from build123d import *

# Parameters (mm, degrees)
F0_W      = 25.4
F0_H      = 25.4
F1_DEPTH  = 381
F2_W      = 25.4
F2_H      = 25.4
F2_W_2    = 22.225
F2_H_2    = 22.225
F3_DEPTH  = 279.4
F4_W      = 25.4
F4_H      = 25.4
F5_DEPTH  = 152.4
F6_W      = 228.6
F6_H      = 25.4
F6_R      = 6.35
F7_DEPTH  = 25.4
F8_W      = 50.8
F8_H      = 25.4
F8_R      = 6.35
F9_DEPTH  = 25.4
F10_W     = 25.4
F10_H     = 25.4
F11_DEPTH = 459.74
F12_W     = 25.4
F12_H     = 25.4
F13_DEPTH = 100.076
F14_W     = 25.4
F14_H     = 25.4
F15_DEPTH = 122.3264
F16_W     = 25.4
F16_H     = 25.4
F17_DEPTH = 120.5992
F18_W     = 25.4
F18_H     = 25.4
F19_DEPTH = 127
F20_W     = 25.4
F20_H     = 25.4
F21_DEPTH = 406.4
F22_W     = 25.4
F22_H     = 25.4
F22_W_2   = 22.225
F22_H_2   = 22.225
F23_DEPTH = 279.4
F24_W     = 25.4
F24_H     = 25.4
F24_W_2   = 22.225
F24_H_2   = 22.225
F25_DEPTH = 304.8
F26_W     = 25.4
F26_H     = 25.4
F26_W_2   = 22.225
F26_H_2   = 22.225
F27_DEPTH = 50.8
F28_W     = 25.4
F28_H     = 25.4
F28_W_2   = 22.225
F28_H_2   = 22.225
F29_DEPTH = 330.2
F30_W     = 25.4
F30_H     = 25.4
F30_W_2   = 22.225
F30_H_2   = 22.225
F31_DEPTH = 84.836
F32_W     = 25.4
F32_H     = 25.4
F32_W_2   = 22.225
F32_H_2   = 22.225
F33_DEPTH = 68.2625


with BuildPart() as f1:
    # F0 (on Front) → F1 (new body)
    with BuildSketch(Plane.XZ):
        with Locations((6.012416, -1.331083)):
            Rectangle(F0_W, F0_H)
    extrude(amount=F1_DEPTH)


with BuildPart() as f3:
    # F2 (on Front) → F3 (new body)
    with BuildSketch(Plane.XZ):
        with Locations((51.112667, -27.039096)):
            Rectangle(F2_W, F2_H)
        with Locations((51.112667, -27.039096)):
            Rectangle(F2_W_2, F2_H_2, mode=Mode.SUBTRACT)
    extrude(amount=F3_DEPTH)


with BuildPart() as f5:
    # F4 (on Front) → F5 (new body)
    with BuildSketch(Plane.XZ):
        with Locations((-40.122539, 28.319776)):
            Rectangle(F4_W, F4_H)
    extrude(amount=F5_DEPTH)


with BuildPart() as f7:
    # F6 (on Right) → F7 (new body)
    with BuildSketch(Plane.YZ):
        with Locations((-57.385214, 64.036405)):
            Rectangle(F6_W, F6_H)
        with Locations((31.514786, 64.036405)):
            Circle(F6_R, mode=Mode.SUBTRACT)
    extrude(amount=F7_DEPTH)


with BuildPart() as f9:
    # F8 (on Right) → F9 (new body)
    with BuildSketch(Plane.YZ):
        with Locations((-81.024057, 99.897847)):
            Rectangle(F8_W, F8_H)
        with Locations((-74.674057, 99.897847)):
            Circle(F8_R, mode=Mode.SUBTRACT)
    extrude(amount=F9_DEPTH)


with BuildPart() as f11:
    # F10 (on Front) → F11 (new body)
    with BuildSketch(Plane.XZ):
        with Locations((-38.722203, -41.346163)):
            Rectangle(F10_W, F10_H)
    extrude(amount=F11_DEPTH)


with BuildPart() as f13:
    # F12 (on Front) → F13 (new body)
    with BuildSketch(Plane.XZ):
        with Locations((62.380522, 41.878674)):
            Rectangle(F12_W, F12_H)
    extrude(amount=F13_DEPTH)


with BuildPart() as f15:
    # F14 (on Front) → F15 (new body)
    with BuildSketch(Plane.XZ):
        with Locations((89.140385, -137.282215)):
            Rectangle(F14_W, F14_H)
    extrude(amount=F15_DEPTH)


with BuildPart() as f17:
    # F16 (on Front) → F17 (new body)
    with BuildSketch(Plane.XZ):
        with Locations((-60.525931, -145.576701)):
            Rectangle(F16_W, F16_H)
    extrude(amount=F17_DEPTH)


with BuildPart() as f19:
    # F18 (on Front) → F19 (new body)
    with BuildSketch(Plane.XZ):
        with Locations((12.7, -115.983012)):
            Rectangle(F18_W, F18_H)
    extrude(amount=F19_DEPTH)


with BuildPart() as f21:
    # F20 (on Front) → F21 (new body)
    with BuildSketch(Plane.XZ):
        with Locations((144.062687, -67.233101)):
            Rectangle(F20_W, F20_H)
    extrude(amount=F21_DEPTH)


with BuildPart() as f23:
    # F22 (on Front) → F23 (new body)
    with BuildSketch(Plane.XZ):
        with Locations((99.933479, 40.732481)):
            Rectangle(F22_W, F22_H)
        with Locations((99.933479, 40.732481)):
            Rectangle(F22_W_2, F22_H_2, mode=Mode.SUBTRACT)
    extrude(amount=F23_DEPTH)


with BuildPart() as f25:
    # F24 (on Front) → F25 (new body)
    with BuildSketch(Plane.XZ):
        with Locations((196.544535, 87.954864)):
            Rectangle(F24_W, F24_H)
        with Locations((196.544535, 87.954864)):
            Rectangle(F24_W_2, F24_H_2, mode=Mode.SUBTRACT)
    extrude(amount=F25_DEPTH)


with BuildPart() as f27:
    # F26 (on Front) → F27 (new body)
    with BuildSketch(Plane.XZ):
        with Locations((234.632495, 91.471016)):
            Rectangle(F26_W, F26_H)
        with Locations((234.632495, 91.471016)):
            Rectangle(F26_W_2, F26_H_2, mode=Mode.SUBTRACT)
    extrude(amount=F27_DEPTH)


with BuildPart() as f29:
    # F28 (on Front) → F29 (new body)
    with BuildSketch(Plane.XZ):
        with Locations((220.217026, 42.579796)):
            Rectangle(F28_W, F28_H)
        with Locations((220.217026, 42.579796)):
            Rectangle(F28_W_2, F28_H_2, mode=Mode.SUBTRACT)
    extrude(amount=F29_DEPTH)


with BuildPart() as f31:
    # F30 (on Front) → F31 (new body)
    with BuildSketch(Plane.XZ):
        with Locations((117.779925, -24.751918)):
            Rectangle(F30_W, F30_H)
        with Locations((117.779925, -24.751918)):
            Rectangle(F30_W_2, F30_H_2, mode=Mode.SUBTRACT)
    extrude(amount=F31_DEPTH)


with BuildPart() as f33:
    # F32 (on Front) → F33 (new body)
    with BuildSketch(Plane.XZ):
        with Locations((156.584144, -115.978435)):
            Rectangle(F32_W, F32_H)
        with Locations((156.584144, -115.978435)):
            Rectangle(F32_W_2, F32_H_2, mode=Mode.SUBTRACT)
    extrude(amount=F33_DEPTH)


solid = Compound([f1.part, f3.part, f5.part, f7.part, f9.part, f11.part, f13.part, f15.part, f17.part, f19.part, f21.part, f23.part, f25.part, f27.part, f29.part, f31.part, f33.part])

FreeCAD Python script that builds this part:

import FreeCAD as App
import Part
import Sketcher

V = App.Vector
Q = App.Units.Quantity

doc = App.newDocument("Part")
params = doc.addObject("Spreadsheet::Sheet", "Params")
for row, (alias, value) in enumerate([
    ("sketch1_width", "1 in"),
    ("pad1_length", "15 in"),
    ("sketch2_width", "1 in"),
    ("sketch2_width2", "0.875 in"),
    ("pad2_length", "11 in"),
    ("sketch3_width", "1 in"),
    ("pad3_length", "6 in"),
    ("sketch4_diameter", "0.5 in"),
    ("sketch4_width", "9 in"),
    ("sketch4_height", "1 in"),
    ("pad4_length", "1 in"),
    ("sketch5_diameter", "0.5 in"),
    ("sketch5_width", "2 in"),
    ("sketch5_height", "1 in"),
    ("pad5_length", "1 in"),
    ("sketch6_width", "1 in"),
    ("pad6_length", "18.1 in"),
    ("sketch7_width", "1 in"),
    ("pad7_length", "3.94 in"),
    ("sketch8_width", "1 in"),
    ("pad8_length", "4.816 in"),
    ("sketch9_width", "1 in"),
    ("pad9_length", "4.748 in"),
    ("sketch10_width", "1 in"),
    ("pad10_length", "5 in"),
    ("sketch11_width", "1 in"),
    ("pad11_length", "16 in"),
    ("sketch12_width", "1 in"),
    ("sketch12_width2", "0.875 in"),
    ("pad12_length", "11 in"),
    ("sketch13_width", "1 in"),
    ("sketch13_width2", "0.875 in"),
    ("pad13_length", "12 in"),
    ("sketch14_width", "1 in"),
    ("sketch14_width2", "0.875 in"),
    ("pad14_length", "2 in"),
    ("sketch15_width", "1 in"),
    ("sketch15_width2", "0.875 in"),
    ("pad15_length", "13 in"),
    ("sketch16_width", "1 in"),
    ("sketch16_width2", "0.875 in"),
    ("pad16_length", "3.34 in"),
    ("sketch17_width", "1 in"),
    ("sketch17_width2", "0.875 in"),
    ("pad17_length", "2.6875 in"),
], start=1):
    params.set(f"A{row}", alias)
    params.set(f"B{row}", "=" + value)
    params.setAlias(f"B{row}", alias)

body = doc.addObject("PartDesign::Body", "Body")

# Sketch on XZ plane
sketch1 = body.newObject("Sketcher::SketchObject", "Sketch")
sketch1.AttachmentSupport = (doc.getObject("XZ_Plane"), [""])
sketch1.MapMode = "FlatFace"
sketch1.addGeometry([
    Part.LineSegment(V(-7, 11, 0), V(-7, -14, 0)),
    Part.LineSegment(V(-7, -14, 0), V(19, -14, 0)),
    Part.LineSegment(V(19, -14, 0), V(19, 11, 0)),
    Part.LineSegment(V(19, 11, 0), V(-7, 11, 0)),
], False)
sketch1.addConstraint([
    Sketcher.Constraint("Coincident", 0, 2, 1, 1),
    Sketcher.Constraint("Coincident", 1, 2, 2, 1),
    Sketcher.Constraint("Coincident", 2, 2, 3, 1),
    Sketcher.Constraint("Coincident", 3, 2, 0, 1),
    Sketcher.Constraint("Vertical", 0),
    Sketcher.Constraint("Horizontal", 1),
    Sketcher.Constraint("Vertical", 2),
    Sketcher.Constraint("Horizontal", 3),
    Sketcher.Constraint("Equal", 3, 0),
    Sketcher.Constraint("DistanceX", 1, 1, 1, 2, Q("1 in")),
    Sketcher.Constraint("DistanceX", 0, 2, -1, 1, Q("6.687584 mm")),
    Sketcher.Constraint("DistanceY", 0, 2, -1, 1, Q("14.031083 mm")),
])
sketch1.setExpression("Constraints[9]", "Params.sketch1_width")
pad1 = body.newObject("PartDesign::Pad", "Pad")
pad1.Profile = sketch1
pad1.setExpression("Length", "Params.pad1_length")
body2 = doc.addObject("PartDesign::Body", "Body001")

# Sketch on XZ plane
sketch2 = body2.newObject("Sketcher::SketchObject", "Sketch001")
sketch2.AttachmentSupport = (doc.getObject("XZ_Plane001"), [""])
sketch2.MapMode = "FlatFace"
sketch2.addGeometry([
    Part.LineSegment(V(38, -14, 0), V(38, -40, 0)),  # 0
    Part.LineSegment(V(38, -40, 0), V(64, -40, 0)),  # 1
    Part.LineSegment(V(64, -40, 0), V(64, -14, 0)),  # 2
    Part.LineSegment(V(64, -14, 0), V(38, -14, 0)),  # 3
    Part.LineSegment(V(62, -38, 0), V(40, -38, 0)),  # 4
    Part.LineSegment(V(40, -38, 0), V(40, -16, 0)),  # 5
    Part.LineSegment(V(40, -16, 0), V(62, -16, 0)),  # 6
    Part.LineSegment(V(62, -16, 0), V(62, -38, 0)),  # 7
], False)
sketch2.addConstraint([
    Sketcher.Constraint("Coincident", 0, 2, 1, 1),
    Sketcher.Constraint("Coincident", 1, 2, 2, 1),
    Sketcher.Constraint("Coincident", 2, 2, 3, 1),
    Sketcher.Constraint("Coincident", 3, 2, 0, 1),
    Sketcher.Constraint("Coincident", 4, 2, 5, 1),
    Sketcher.Constraint("Coincident", 5, 2, 6, 1),
    Sketcher.Constraint("Coincident", 6, 2, 7, 1),
    Sketcher.Constraint("Coincident", 7, 2, 4, 1),
    Sketcher.Constraint("Vertical", 0),
    Sketcher.Constraint("Horizontal", 1),
    Sketcher.Constraint("Vertical", 2),
    Sketcher.Constraint("Horizontal", 3),
    Sketcher.Constraint("Horizontal", 4),
    Sketcher.Constraint("Vertical", 5),
    Sketcher.Constraint("Horizontal", 6),
    Sketcher.Constraint("Vertical", 7),
    Sketcher.Constraint("Equal", 3, 0),
    Sketcher.Constraint("Equal", 6, 5),
    Sketcher.Constraint("DistanceX", 1, 1, 1, 2, Q("1 in")),
    Sketcher.Constraint("DistanceX", 4, 2, 4, 1, Q("0.875 in")),
    Sketcher.Constraint("DistanceX", 0, 2, 4, 2, Q("0.0625 in")),
    Sketcher.Constraint("DistanceY", 0, 2, 4, 2, Q("0.0625 in")),
    Sketcher.Constraint("DistanceX", -1, 1, 0, 2, Q("38.412667 mm")),
    Sketcher.Constraint("DistanceY", 0, 2, -1, 1, Q("39.739096 mm")),
])
sketch2.setExpression("Constraints[18]", "Params.sketch2_width")
sketch2.setExpression("Constraints[19]", "Params.sketch2_width2")
pad2 = body2.newObject("PartDesign::Pad", "Pad001")
pad2.Profile = sketch2
pad2.setExpression("Length", "Params.pad2_length")
body3 = doc.addObject("PartDesign::Body", "Body002")

# Sketch on XZ plane
sketch3 = body3.newObject("Sketcher::SketchObject", "Sketch002")
sketch3.AttachmentSupport = (doc.getObject("XZ_Plane002"), [""])
sketch3.MapMode = "FlatFace"
sketch3.addGeometry([
    Part.LineSegment(V(-53, 41, 0), V(-53, 16, 0)),
    Part.LineSegment(V(-53, 16, 0), V(-27, 16, 0)),
    Part.LineSegment(V(-27, 16, 0), V(-27, 41, 0)),
    Part.LineSegment(V(-27, 41, 0), V(-53, 41, 0)),
], False)
sketch3.addConstraint([
    Sketcher.Constraint("Coincident", 0, 2, 1, 1),
    Sketcher.Constraint("Coincident", 1, 2, 2, 1),
    Sketcher.Constraint("Coincident", 2, 2, 3, 1),
    Sketcher.Constraint("Coincident", 3, 2, 0, 1),
    Sketcher.Constraint("Vertical", 0),
    Sketcher.Constraint("Horizontal", 1),
    Sketcher.Constraint("Vertical", 2),
    Sketcher.Constraint("Horizontal", 3),
    Sketcher.Constraint("Equal", 3, 0),
    Sketcher.Constraint("DistanceX", 1, 1, 1, 2, Q("1 in")),
    Sketcher.Constraint("DistanceX", 0, 2, -1, 1, Q("52.822539 mm")),
    Sketcher.Constraint("DistanceY", -1, 1, 0, 2, Q("15.619776 mm")),
])
sketch3.setExpression("Constraints[9]", "Params.sketch3_width")
pad3 = body3.newObject("PartDesign::Pad", "Pad002")
pad3.Profile = sketch3
pad3.setExpression("Length", "Params.pad3_length")
body4 = doc.addObject("PartDesign::Body", "Body003")

# Sketch on YZ plane
sketch4 = body4.newObject("Sketcher::SketchObject", "Sketch003")
sketch4.AttachmentSupport = (doc.getObject("YZ_Plane003"), [""])
sketch4.MapMode = "FlatFace"
sketch4.addGeometry([
    Part.LineSegment(V(-172, 77, 0), V(-172, 51, 0)),  # 0
    Part.LineSegment(V(-172, 51, 0), V(57, 51, 0)),  # 1
    Part.LineSegment(V(57, 51, 0), V(57, 77, 0)),  # 2
    Part.LineSegment(V(57, 77, 0), V(-172, 77, 0)),  # 3
    Part.Circle(V(32, 64, 0), V(0, 0, 1), 6),  # 4
], False)
sketch4.addConstraint([
    Sketcher.Constraint("Coincident", 0, 2, 1, 1),
    Sketcher.Constraint("Coincident", 1, 2, 2, 1),
    Sketcher.Constraint("Coincident", 2, 2, 3, 1),
    Sketcher.Constraint("Coincident", 3, 2, 0, 1),
    Sketcher.Constraint("Vertical", 0),
    Sketcher.Constraint("Horizontal", 1),
    Sketcher.Constraint("Vertical", 2),
    Sketcher.Constraint("Horizontal", 3),
    Sketcher.Constraint("Diameter", 4, Q("0.5 in")),
    Sketcher.Constraint("DistanceX", 1, 1, 1, 2, Q("9 in")),
    Sketcher.Constraint("DistanceY", 0, 2, 0, 1, Q("1 in")),
    Sketcher.Constraint("DistanceX", 0, 2, 4, 3, Q("8 in")),
    Sketcher.Constraint("DistanceY", 0, 2, 4, 3, Q("0.5 in")),
    Sketcher.Constraint("DistanceX", -1, 1, 4, 3, Q("31.514786 mm")),
    Sketcher.Constraint("DistanceY", -1, 1, 4, 3, Q("64.036405 mm")),
])
sketch4.setExpression("Constraints[8]", "Params.sketch4_diameter")
sketch4.setExpression("Constraints[9]", "Params.sketch4_width")
sketch4.setExpression("Constraints[10]", "Params.sketch4_height")
pad4 = body4.newObject("PartDesign::Pad", "Pad003")
pad4.Profile = sketch4
pad4.setExpression("Length", "Params.pad4_length")
body5 = doc.addObject("PartDesign::Body", "Body004")

# Sketch on YZ plane
sketch5 = body5.newObject("Sketcher::SketchObject", "Sketch004")
sketch5.AttachmentSupport = (doc.getObject("YZ_Plane004"), [""])
sketch5.MapMode = "FlatFace"
sketch5.addGeometry([
    Part.LineSegment(V(-106, 113, 0), V(-106, 87, 0)),  # 0
    Part.LineSegment(V(-106, 87, 0), V(-56, 87, 0)),  # 1
    Part.LineSegment(V(-56, 87, 0), V(-56, 113, 0)),  # 2
    Part.LineSegment(V(-56, 113, 0), V(-106, 113, 0)),  # 3
    Part.Circle(V(-75, 100, 0), V(0, 0, 1), 6),  # 4
], False)
sketch5.addConstraint([
    Sketcher.Constraint("Coincident", 0, 2, 1, 1),
    Sketcher.Constraint("Coincident", 1, 2, 2, 1),
    Sketcher.Constraint("Coincident", 2, 2, 3, 1),
    Sketcher.Constraint("Coincident", 3, 2, 0, 1),
    Sketcher.Constraint("Vertical", 0),
    Sketcher.Constraint("Horizontal", 1),
    Sketcher.Constraint("Vertical", 2),
    Sketcher.Constraint("Horizontal", 3),
    Sketcher.Constraint("Diameter", 4, Q("0.5 in")),
    Sketcher.Constraint("DistanceX", 1, 1, 1, 2, Q("2 in")),
    Sketcher.Constraint("DistanceY", 0, 2, 0, 1, Q("1 in")),
    Sketcher.Constraint("DistanceY", 0, 2, 4, 3, Q("0.5 in")),
    Sketcher.Constraint("DistanceX", 0, 2, 4, 3, Q("1.25 in")),
    Sketcher.Constraint("DistanceX", 4, 3, -1, 1, Q("74.674057 mm")),
    Sketcher.Constraint("DistanceY", -1, 1, 4, 3, Q("99.897847 mm")),
])
sketch5.setExpression("Constraints[8]", "Params.sketch5_diameter")
sketch5.setExpression("Constraints[9]", "Params.sketch5_width")
sketch5.setExpression("Constraints[10]", "Params.sketch5_height")
pad5 = body5.newObject("PartDesign::Pad", "Pad004")
pad5.Profile = sketch5
pad5.setExpression("Length", "Params.pad5_length")
body6 = doc.addObject("PartDesign::Body", "Body005")

# Sketch on XZ plane
sketch6 = body6.newObject("Sketcher::SketchObject", "Sketch005")
sketch6.AttachmentSupport = (doc.getObject("XZ_Plane005"), [""])
sketch6.MapMode = "FlatFace"
sketch6.addGeometry([
    Part.LineSegment(V(-51, -29, 0), V(-51, -54, 0)),
    Part.LineSegment(V(-51, -54, 0), V(-26, -54, 0)),
    Part.LineSegment(V(-26, -54, 0), V(-26, -29, 0)),
    Part.LineSegment(V(-26, -29, 0), V(-51, -29, 0)),
], False)
sketch6.addConstraint([
    Sketcher.Constraint("Coincident", 0, 2, 1, 1),
    Sketcher.Constraint("Coincident", 1, 2, 2, 1),
    Sketcher.Constraint("Coincident", 2, 2, 3, 1),
    Sketcher.Constraint("Coincident", 3, 2, 0, 1),
    Sketcher.Constraint("Vertical", 0),
    Sketcher.Constraint("Horizontal", 1),
    Sketcher.Constraint("Vertical", 2),
    Sketcher.Constraint("Horizontal", 3),
    Sketcher.Constraint("Equal", 3, 0),
    Sketcher.Constraint("DistanceX", 1, 1, 1, 2, Q("1 in")),
    Sketcher.Constraint("DistanceX", 0, 2, -1, 1, Q("51.422203 mm")),
    Sketcher.Constraint("DistanceY", 0, 2, -1, 1, Q("54.046163 mm")),
])
sketch6.setExpression("Constraints[9]", "Params.sketch6_width")
pad6 = body6.newObject("PartDesign::Pad", "Pad005")
pad6.Profile = sketch6
pad6.setExpression("Length", "Params.pad6_length")
body7 = doc.addObject("PartDesign::Body", "Body006")

# Sketch on XZ plane
sketch7 = body7.newObject("Sketcher::SketchObject", "Sketch006")
sketch7.AttachmentSupport = (doc.getObject("XZ_Plane006"), [""])
sketch7.MapMode = "FlatFace"
sketch7.addGeometry([
    Part.LineSegment(V(50, 55, 0), V(50, 29, 0)),
    Part.LineSegment(V(50, 29, 0), V(75, 29, 0)),
    Part.LineSegment(V(75, 29, 0), V(75, 55, 0)),
    Part.LineSegment(V(75, 55, 0), V(50, 55, 0)),
], False)
sketch7.addConstraint([
    Sketcher.Constraint("Coincident", 0, 2, 1, 1),
    Sketcher.Constraint("Coincident", 1, 2, 2, 1),
    Sketcher.Constraint("Coincident", 2, 2, 3, 1),
    Sketcher.Constraint("Coincident", 3, 2, 0, 1),
    Sketcher.Constraint("Vertical", 0),
    Sketcher.Constraint("Horizontal", 1),
    Sketcher.Constraint("Vertical", 2),
    Sketcher.Constraint("Horizontal", 3),
    Sketcher.Constraint("Equal", 3, 0),
    Sketcher.Constraint("DistanceX", 1, 1, 1, 2, Q("1 in")),
    Sketcher.Constraint("DistanceX", -1, 1, 1, 2, Q("75.080522 mm")),
    Sketcher.Constraint("DistanceY", -1, 1, 0, 2, Q("29.178674 mm")),
])
sketch7.setExpression("Constraints[9]", "Params.sketch7_width")
pad7 = body7.newObject("PartDesign::Pad", "Pad006")
pad7.Profile = sketch7
pad7.setExpression("Length", "Params.pad7_length")
body8 = doc.addObject("PartDesign::Body", "Body007")

# Sketch on XZ plane
sketch8 = body8.newObject("Sketcher::SketchObject", "Sketch007")
sketch8.AttachmentSupport = (doc.getObject("XZ_Plane007"), [""])
sketch8.MapMode = "FlatFace"
sketch8.addGeometry([
    Part.LineSegment(V(76, -125, 0), V(76, -150, 0)),
    Part.LineSegment(V(76, -150, 0), V(102, -150, 0)),
    Part.LineSegment(V(102, -150, 0), V(102, -125, 0)),
    Part.LineSegment(V(102, -125, 0), V(76, -125, 0)),
], False)
sketch8.addConstraint([
    Sketcher.Constraint("Coincident", 0, 2, 1, 1),
    Sketcher.Constraint("Coincident", 1, 2, 2, 1),
    Sketcher.Constraint("Coincident", 2, 2, 3, 1),
    Sketcher.Constraint("Coincident", 3, 2, 0, 1),
    Sketcher.Constraint("Vertical", 0),
    Sketcher.Constraint("Horizontal", 1),
    Sketcher.Constraint("Vertical", 2),
    Sketcher.Constraint("Horizontal", 3),
    Sketcher.Constraint("Equal", 3, 0),
    Sketcher.Constraint("DistanceX", 1, 1, 1, 2, Q("1 in")),
    Sketcher.Constraint("DistanceX", -1, 1, 0, 2, Q("76.440385 mm")),
    Sketcher.Constraint("DistanceY", 0, 2, -1, 1, Q("149.982215 mm")),
])
sketch8.setExpression("Constraints[9]", "Params.sketch8_width")
pad8 = body8.newObject("PartDesign::Pad", "Pad007")
pad8.Profile = sketch8
pad8.setExpression("Length", "Params.pad8_length")
body9 = doc.addObject("PartDesign::Body", "Body008")

# Sketch on XZ plane
sketch9 = body9.newObject("Sketcher::SketchObject", "Sketch008")
sketch9.AttachmentSupport = (doc.getObject("XZ_Plane008"), [""])
sketch9.MapMode = "FlatFace"
sketch9.addGeometry([
    Part.LineSegment(V(-73, -133, 0), V(-73, -158, 0)),
    Part.LineSegment(V(-73, -158, 0), V(-48, -158, 0)),
    Part.LineSegment(V(-48, -158, 0), V(-48, -133, 0)),
    Part.LineSegment(V(-48, -133, 0), V(-73, -133, 0)),
], False)
sketch9.addConstraint([
    Sketcher.Constraint("Coincident", 0, 2, 1, 1),
    Sketcher.Constraint("Coincident", 1, 2, 2, 1),
    Sketcher.Constraint("Coincident", 2, 2, 3, 1),
    Sketcher.Constraint("Coincident", 3, 2, 0, 1),
    Sketcher.Constraint("Vertical", 0),
    Sketcher.Constraint("Horizontal", 1),
    Sketcher.Constraint("Vertical", 2),
    Sketcher.Constraint("Horizontal", 3),
    Sketcher.Constraint("Equal", 3, 0),
    Sketcher.Constraint("DistanceX", 1, 1, 1, 2, Q("1 in")),
    Sketcher.Constraint("DistanceY", 0, 2, -1, 1, Q("158.276701 mm")),
    Sketcher.Constraint("DistanceX", 0, 2, -1, 1, Q("73.225931 mm")),
])
sketch9.setExpression("Constraints[9]", "Params.sketch9_width")
pad9 = body9.newObject("PartDesign::Pad", "Pad008")
pad9.Profile = sketch9
pad9.setExpression("Length", "Params.pad9_length")
body10 = doc.addObject("PartDesign::Body", "Body009")

# Sketch on XZ plane
sketch10 = body10.newObject("Sketcher::SketchObject", "Sketch009")
sketch10.AttachmentSupport = (doc.getObject("XZ_Plane009"), [""])
sketch10.MapMode = "FlatFace"
sketch10.addGeometry([
    Part.LineSegment(V(0, -103, 0), V(0, -129, 0)),
    Part.LineSegment(V(0, -129, 0), V(25, -129, 0)),
    Part.LineSegment(V(25, -129, 0), V(25, -103, 0)),
    Part.LineSegment(V(25, -103, 0), V(0, -103, 0)),
], False)
sketch10.addConstraint([
    Sketcher.Constraint("Coincident", 0, 2, 1, 1),
    Sketcher.Constraint("Coincident", 1, 2, 2, 1),
    Sketcher.Constraint("Coincident", 2, 2, 3, 1),
    Sketcher.Constraint("Coincident", 3, 2, 0, 1),
    Sketcher.Constraint("Vertical", 0),
    Sketcher.Constraint("Horizontal", 1),
    Sketcher.Constraint("Vertical", 2),
    Sketcher.Constraint("Horizontal", 3),
    Sketcher.Constraint("PointOnObject", 0, 2, -2),
    Sketcher.Constraint("Equal", 3, 0),
    Sketcher.Constraint("DistanceX", 1, 1, 1, 2, Q("1 in")),
    Sketcher.Constraint("DistanceY", 0, 2, -1, 1, Q("128.683012 mm")),
])
sketch10.setExpression("Constraints[10]", "Params.sketch10_width")
pad10 = body10.newObject("PartDesign::Pad", "Pad009")
pad10.Profile = sketch10
pad10.setExpression("Length", "Params.pad10_length")
body11 = doc.addObject("PartDesign::Body", "Body010")

# Sketch on XZ plane
sketch11 = body11.newObject("Sketcher::SketchObject", "Sketch010")
sketch11.AttachmentSupport = (doc.getObject("XZ_Plane010"), [""])
sketch11.MapMode = "FlatFace"
sketch11.addGeometry([
    Part.LineSegment(V(131, -55, 0), V(131, -80, 0)),
    Part.LineSegment(V(131, -80, 0), V(157, -80, 0)),
    Part.LineSegment(V(157, -80, 0), V(157, -55, 0)),
    Part.LineSegment(V(157, -55, 0), V(131, -55, 0)),
], False)
sketch11.addConstraint([
    Sketcher.Constraint("Coincident", 0, 2, 1, 1),
    Sketcher.Constraint("Coincident", 1, 2, 2, 1),
    Sketcher.Constraint("Coincident", 2, 2, 3, 1),
    Sketcher.Constraint("Coincident", 3, 2, 0, 1),
    Sketcher.Constraint("Vertical", 0),
    Sketcher.Constraint("Horizontal", 1),
    Sketcher.Constraint("Vertical", 2),
    Sketcher.Constraint("Horizontal", 3),
    Sketcher.Constraint("Equal", 3, 0),
    Sketcher.Constraint("DistanceX", 1, 1, 1, 2, Q("1 in")),
    Sketcher.Constraint("DistanceY", 0, 2, -1, 1, Q("79.933101 mm")),
    Sketcher.Constraint("DistanceX", -1, 1, 0, 2, Q("131.362687 mm")),
])
sketch11.setExpression("Constraints[9]", "Params.sketch11_width")
pad11 = body11.newObject("PartDesign::Pad", "Pad010")
pad11.Profile = sketch11
pad11.setExpression("Length", "Params.pad11_length")
body12 = doc.addObject("PartDesign::Body", "Body011")

# Sketch on XZ plane
sketch12 = body12.newObject("Sketcher::SketchObject", "Sketch011")
sketch12.AttachmentSupport = (doc.getObject("XZ_Plane011"), [""])
sketch12.MapMode = "FlatFace"
sketch12.addGeometry([
    Part.LineSegment(V(87, 53, 0), V(87, 28, 0)),  # 0
    Part.LineSegment(V(87, 28, 0), V(113, 28, 0)),  # 1
    Part.LineSegment(V(113, 28, 0), V(113, 53, 0)),  # 2
    Part.LineSegment(V(113, 53, 0), V(87, 53, 0)),  # 3
    Part.LineSegment(V(111, 30, 0), V(89, 30, 0)),  # 4
    Part.LineSegment(V(89, 30, 0), V(89, 52, 0)),  # 5
    Part.LineSegment(V(89, 52, 0), V(111, 52, 0)),  # 6
    Part.LineSegment(V(111, 52, 0), V(111, 30, 0)),  # 7
], False)
sketch12.addConstraint([
    Sketcher.Constraint("Coincident", 0, 2, 1, 1),
    Sketcher.Constraint("Coincident", 1, 2, 2, 1),
    Sketcher.Constraint("Coincident", 2, 2, 3, 1),
    Sketcher.Constraint("Coincident", 3, 2, 0, 1),
    Sketcher.Constraint("Coincident", 4, 2, 5, 1),
    Sketcher.Constraint("Coincident", 5, 2, 6, 1),
    Sketcher.Constraint("Coincident", 6, 2, 7, 1),
    Sketcher.Constraint("Coincident", 7, 2, 4, 1),
    Sketcher.Constraint("Vertical", 0),
    Sketcher.Constraint("Horizontal", 1),
    Sketcher.Constraint("Vertical", 2),
    Sketcher.Constraint("Horizontal", 3),
    Sketcher.Constraint("Horizontal", 4),
    Sketcher.Constraint("Vertical", 5),
    Sketcher.Constraint("Horizontal", 6),
    Sketcher.Constraint("Vertical", 7),
    Sketcher.Constraint("Equal", 3, 0),
    Sketcher.Constraint("Equal", 6, 5),
    Sketcher.Constraint("DistanceX", 1, 1, 1, 2, Q("1 in")),
    Sketcher.Constraint("DistanceX", 4, 2, 4, 1, Q("0.875 in")),
    Sketcher.Constraint("DistanceX", 0, 2, 4, 2, Q("0.0625 in")),
    Sketcher.Constraint("DistanceY", 0, 2, 4, 2, Q("0.0625 in")),
    Sketcher.Constraint("DistanceX", -1, 1, 0, 2, Q("87.233479 mm")),
    Sketcher.Constraint("DistanceY", -1, 1, 0, 2, Q("28.032481 mm")),
])
sketch12.setExpression("Constraints[18]", "Params.sketch12_width")
sketch12.setExpression("Constraints[19]", "Params.sketch12_width2")
pad12 = body12.newObject("PartDesign::Pad", "Pad011")
pad12.Profile = sketch12
pad12.setExpression("Length", "Params.pad12_length")
body13 = doc.addObject("PartDesign::Body", "Body012")

# Sketch on XZ plane
sketch13 = body13.newObject("Sketcher::SketchObject", "Sketch012")
sketch13.AttachmentSupport = (doc.getObject("XZ_Plane012"), [""])
sketch13.MapMode = "FlatFace"
sketch13.addGeometry([
    Part.LineSegment(V(184, 101, 0), V(184, 75, 0)),  # 0
    Part.LineSegment(V(184, 75, 0), V(209, 75, 0)),  # 1
    Part.LineSegment(V(209, 75, 0), V(209, 101, 0)),  # 2
    Part.LineSegment(V(209, 101, 0), V(184, 101, 0)),  # 3
    Part.LineSegment(V(208, 77, 0), V(185, 77, 0)),  # 4
    Part.LineSegment(V(185, 77, 0), V(185, 99, 0)),  # 5
    Part.LineSegment(V(185, 99, 0), V(208, 99, 0)),  # 6
    Part.LineSegment(V(208, 99, 0), V(208, 77, 0)),  # 7
], False)
sketch13.addConstraint([
    Sketcher.Constraint("Coincident", 0, 2, 1, 1),
    Sketcher.Constraint("Coincident", 1, 2, 2, 1),
    Sketcher.Constraint("Coincident", 2, 2, 3, 1),
    Sketcher.Constraint("Coincident", 3, 2, 0, 1),
    Sketcher.Constraint("Coincident", 4, 2, 5, 1),
    Sketcher.Constraint("Coincident", 5, 2, 6, 1),
    Sketcher.Constraint("Coincident", 6, 2, 7, 1),
    Sketcher.Constraint("Coincident", 7, 2, 4, 1),
    Sketcher.Constraint("Vertical", 0),
    Sketcher.Constraint("Horizontal", 1),
    Sketcher.Constraint("Vertical", 2),
    Sketcher.Constraint("Horizontal", 3),
    Sketcher.Constraint("Horizontal", 4),
    Sketcher.Constraint("Vertical", 5),
    Sketcher.Constraint("Horizontal", 6),
    Sketcher.Constraint("Vertical", 7),
    Sketcher.Constraint("Equal", 3, 0),
    Sketcher.Constraint("Equal", 6, 5),
    Sketcher.Constraint("DistanceX", 1, 1, 1, 2, Q("1 in")),
    Sketcher.Constraint("DistanceX", 4, 2, 4, 1, Q("0.875 in")),
    Sketcher.Constraint("DistanceX", 0, 2, 4, 2, Q("0.0625 in")),
    Sketcher.Constraint("DistanceY", 0, 2, 4, 2, Q("0.0625 in")),
    Sketcher.Constraint("DistanceX", -1, 1, 0, 2, Q("183.844535 mm")),
    Sketcher.Constraint("DistanceY", -1, 1, 0, 2, Q("75.254864 mm")),
])
sketch13.setExpression("Constraints[18]", "Params.sketch13_width")
sketch13.setExpression("Constraints[19]", "Params.sketch13_width2")
pad13 = body13.newObject("PartDesign::Pad", "Pad012")
pad13.Profile = sketch13
pad13.setExpression("Length", "Params.pad13_length")
body14 = doc.addObject("PartDesign::Body", "Body013")

# Sketch on XZ plane
sketch14 = body14.newObject("Sketcher::SketchObject", "Sketch013")
sketch14.AttachmentSupport = (doc.getObject("XZ_Plane013"), [""])
sketch14.MapMode = "FlatFace"
sketch14.addGeometry([
    Part.LineSegment(V(222, 104, 0), V(222, 79, 0)),  # 0
    Part.LineSegment(V(222, 79, 0), V(247, 79, 0)),  # 1
    Part.LineSegment(V(247, 79, 0), V(247, 104, 0)),  # 2
    Part.LineSegment(V(247, 104, 0), V(222, 104, 0)),  # 3
    Part.LineSegment(V(246, 80, 0), V(224, 80, 0)),  # 4
    Part.LineSegment(V(224, 80, 0), V(224, 103, 0)),  # 5
    Part.LineSegment(V(224, 103, 0), V(246, 103, 0)),  # 6
    Part.LineSegment(V(246, 103, 0), V(246, 80, 0)),  # 7
], False)
sketch14.addConstraint([
    Sketcher.Constraint("Coincident", 0, 2, 1, 1),
    Sketcher.Constraint("Coincident", 1, 2, 2, 1),
    Sketcher.Constraint("Coincident", 2, 2, 3, 1),
    Sketcher.Constraint("Coincident", 3, 2, 0, 1),
    Sketcher.Constraint("Coincident", 4, 2, 5, 1),
    Sketcher.Constraint("Coincident", 5, 2, 6, 1),
    Sketcher.Constraint("Coincident", 6, 2, 7, 1),
    Sketcher.Constraint("Coincident", 7, 2, 4, 1),
    Sketcher.Constraint("Vertical", 0),
    Sketcher.Constraint("Horizontal", 1),
    Sketcher.Constraint("Vertical", 2),
    Sketcher.Constraint("Horizontal", 3),
    Sketcher.Constraint("Horizontal", 4),
    Sketcher.Constraint("Vertical", 5),
    Sketcher.Constraint("Horizontal", 6),
    Sketcher.Constraint("Vertical", 7),
    Sketcher.Constraint("Equal", 3, 0),
    Sketcher.Constraint("Equal", 6, 5),
    Sketcher.Constraint("DistanceX", 1, 1, 1, 2, Q("1 in")),
    Sketcher.Constraint("DistanceX", -1, 1, 4, 2, Q("8.7999998 in")),
    Sketcher.Constraint("DistanceX", 4, 2, 4, 1, Q("0.875 in")),
    Sketcher.Constraint("DistanceX", 0, 2, 4, 2, Q("0.0625 in")),
    Sketcher.Constraint("DistanceY", 0, 2, 4, 2, Q("0.0625 in")),
    Sketcher.Constraint("DistanceY", -1, 1, 0, 2, Q("78.771016 mm")),
])
sketch14.setExpression("Constraints[18]", "Params.sketch14_width")
sketch14.setExpression("Constraints[20]", "Params.sketch14_width2")
pad14 = body14.newObject("PartDesign::Pad", "Pad013")
pad14.Profile = sketch14
pad14.setExpression("Length", "Params.pad14_length")
body15 = doc.addObject("PartDesign::Body", "Body014")

# Sketch on XZ plane
sketch15 = body15.newObject("Sketcher::SketchObject", "Sketch014")
sketch15.AttachmentSupport = (doc.getObject("XZ_Plane014"), [""])
sketch15.MapMode = "FlatFace"
sketch15.addGeometry([
    Part.LineSegment(V(208, 55, 0), V(208, 30, 0)),  # 0
    Part.LineSegment(V(208, 30, 0), V(233, 30, 0)),  # 1
    Part.LineSegment(V(233, 30, 0), V(233, 55, 0)),  # 2
    Part.LineSegment(V(233, 55, 0), V(208, 55, 0)),  # 3
    Part.LineSegment(V(231, 31, 0), V(209, 31, 0)),  # 4
    Part.LineSegment(V(209, 31, 0), V(209, 54, 0)),  # 5
    Part.LineSegment(V(209, 54, 0), V(231, 54, 0)),  # 6
    Part.LineSegment(V(231, 54, 0), V(231, 31, 0)),  # 7
], False)
sketch15.addConstraint([
    Sketcher.Constraint("Coincident", 0, 2, 1, 1),
    Sketcher.Constraint("Coincident", 1, 2, 2, 1),
    Sketcher.Constraint("Coincident", 2, 2, 3, 1),
    Sketcher.Constraint("Coincident", 3, 2, 0, 1),
    Sketcher.Constraint("Coincident", 4, 2, 5, 1),
    Sketcher.Constraint("Coincident", 5, 2, 6, 1),
    Sketcher.Constraint("Coincident", 6, 2, 7, 1),
    Sketcher.Constraint("Coincident", 7, 2, 4, 1),
    Sketcher.Constraint("Vertical", 0),
    Sketcher.Constraint("Horizontal", 1),
    Sketcher.Constraint("Vertical", 2),
    Sketcher.Constraint("Horizontal", 3),
    Sketcher.Constraint("Horizontal", 4),
    Sketcher.Constraint("Vertical", 5),
    Sketcher.Constraint("Horizontal", 6),
    Sketcher.Constraint("Vertical", 7),
    Sketcher.Constraint("Equal", 3, 0),
    Sketcher.Constraint("Equal", 6, 5),
    Sketcher.Constraint("DistanceX", 1, 1, 1, 2, Q("1 in")),
    Sketcher.Constraint("DistanceX", 4, 2, 4, 1, Q("0.875 in")),
    Sketcher.Constraint("DistanceX", 0, 2, 4, 2, Q("0.0625 in")),
    Sketcher.Constraint("DistanceY", 0, 2, 4, 2, Q("0.0625 in")),
    Sketcher.Constraint("DistanceX", -1, 1, 0, 2, Q("207.517026 mm")),
    Sketcher.Constraint("DistanceY", -1, 1, 0, 2, Q("29.879796 mm")),
])
sketch15.setExpression("Constraints[18]", "Params.sketch15_width")
sketch15.setExpression("Constraints[19]", "Params.sketch15_width2")
pad15 = body15.newObject("PartDesign::Pad", "Pad014")
pad15.Profile = sketch15
pad15.setExpression("Length", "Params.pad15_length")
body16 = doc.addObject("PartDesign::Body", "Body015")

# Sketch on XZ plane
sketch16 = body16.newObject("Sketcher::SketchObject", "Sketch015")
sketch16.AttachmentSupport = (doc.getObject("XZ_Plane015"), [""])
sketch16.MapMode = "FlatFace"
sketch16.addGeometry([
    Part.LineSegment(V(105, -12, 0), V(105, -37, 0)),  # 0
    Part.LineSegment(V(105, -37, 0), V(130, -37, 0)),  # 1
    Part.LineSegment(V(130, -37, 0), V(130, -12, 0)),  # 2
    Part.LineSegment(V(130, -12, 0), V(105, -12, 0)),  # 3
    Part.LineSegment(V(129, -36, 0), V(107, -36, 0)),  # 4
    Part.LineSegment(V(107, -36, 0), V(107, -14, 0)),  # 5
    Part.LineSegment(V(107, -14, 0), V(129, -14, 0)),  # 6
    Part.LineSegment(V(129, -14, 0), V(129, -36, 0)),  # 7
], False)
sketch16.addConstraint([
    Sketcher.Constraint("Coincident", 0, 2, 1, 1),
    Sketcher.Constraint("Coincident", 1, 2, 2, 1),
    Sketcher.Constraint("Coincident", 2, 2, 3, 1),
    Sketcher.Constraint("Coincident", 3, 2, 0, 1),
    Sketcher.Constraint("Coincident", 4, 2, 5, 1),
    Sketcher.Constraint("Coincident", 5, 2, 6, 1),
    Sketcher.Constraint("Coincident", 6, 2, 7, 1),
    Sketcher.Constraint("Coincident", 7, 2, 4, 1),
    Sketcher.Constraint("Vertical", 0),
    Sketcher.Constraint("Horizontal", 1),
    Sketcher.Constraint("Vertical", 2),
    Sketcher.Constraint("Horizontal", 3),
    Sketcher.Constraint("Horizontal", 4),
    Sketcher.Constraint("Vertical", 5),
    Sketcher.Constraint("Horizontal", 6),
    Sketcher.Constraint("Vertical", 7),
    Sketcher.Constraint("Equal", 3, 0),
    Sketcher.Constraint("Equal", 6, 5),
    Sketcher.Constraint("DistanceX", 1, 1, 1, 2, Q("1 in")),
    Sketcher.Constraint("DistanceX", 4, 2, 4, 1, Q("0.875 in")),
    Sketcher.Constraint("DistanceX", 0, 2, 4, 2, Q("0.0625 in")),
    Sketcher.Constraint("DistanceY", 0, 2, 4, 2, Q("0.0625 in")),
    Sketcher.Constraint("DistanceX", -1, 1, 0, 2, Q("105.079925 mm")),
    Sketcher.Constraint("DistanceY", 0, 2, -1, 1, Q("37.451918 mm")),
])
sketch16.setExpression("Constraints[18]", "Params.sketch16_width")
sketch16.setExpression("Constraints[19]", "Params.sketch16_width2")
pad16 = body16.newObject("PartDesign::Pad", "Pad015")
pad16.Profile = sketch16
pad16.setExpression("Length", "Params.pad16_length")
body17 = doc.addObject("PartDesign::Body", "Body016")

# Sketch on XZ plane
sketch17 = body17.newObject("Sketcher::SketchObject", "Sketch016")
sketch17.AttachmentSupport = (doc.getObject("XZ_Plane016"), [""])
sketch17.MapMode = "FlatFace"
sketch17.addGeometry([
    Part.LineSegment(V(144, -103, 0), V(144, -129, 0)),  # 0
    Part.LineSegment(V(144, -129, 0), V(169, -129, 0)),  # 1
    Part.LineSegment(V(169, -129, 0), V(169, -103, 0)),  # 2
    Part.LineSegment(V(169, -103, 0), V(144, -103, 0)),  # 3
    Part.LineSegment(V(168, -127, 0), V(145, -127, 0)),  # 4
    Part.LineSegment(V(145, -127, 0), V(145, -105, 0)),  # 5
    Part.LineSegment(V(145, -105, 0), V(168, -105, 0)),  # 6
    Part.LineSegment(V(168, -105, 0), V(168, -127, 0)),  # 7
], False)
sketch17.addConstraint([
    Sketcher.Constraint("Coincident", 0, 2, 1, 1),
    Sketcher.Constraint("Coincident", 1, 2, 2, 1),
    Sketcher.Constraint("Coincident", 2, 2, 3, 1),
    Sketcher.Constraint("Coincident", 3, 2, 0, 1),
    Sketcher.Constraint("Coincident", 4, 2, 5, 1),
    Sketcher.Constraint("Coincident", 5, 2, 6, 1),
    Sketcher.Constraint("Coincident", 6, 2, 7, 1),
    Sketcher.Constraint("Coincident", 7, 2, 4, 1),
    Sketcher.Constraint("Vertical", 0),
    Sketcher.Constraint("Horizontal", 1),
    Sketcher.Constraint("Vertical", 2),
    Sketcher.Constraint("Horizontal", 3),
    Sketcher.Constraint("Horizontal", 4),
    Sketcher.Constraint("Vertical", 5),
    Sketcher.Constraint("Horizontal", 6),
    Sketcher.Constraint("Vertical", 7),
    Sketcher.Constraint("Equal", 3, 0),
    Sketcher.Constraint("Equal", 6, 5),
    Sketcher.Constraint("DistanceX", 1, 1, 1, 2, Q("1 in")),
    Sketcher.Constraint("DistanceX", 4, 2, 4, 1, Q("0.875 in")),
    Sketcher.Constraint("DistanceX", 0, 2, 4, 2, Q("0.0625 in")),
    Sketcher.Constraint("DistanceY", 0, 2, 4, 2, Q("0.0625 in")),
    Sketcher.Constraint("DistanceX", -1, 1, 0, 2, Q("143.884144 mm")),
    Sketcher.Constraint("DistanceY", 0, 2, -1, 1, Q("128.678435 mm")),
])
sketch17.setExpression("Constraints[18]", "Params.sketch17_width")
sketch17.setExpression("Constraints[19]", "Params.sketch17_width2")
pad17 = body17.newObject("PartDesign::Pad", "Pad016")
pad17.Profile = sketch17
pad17.setExpression("Length", "Params.pad17_length")

doc.recompute()
